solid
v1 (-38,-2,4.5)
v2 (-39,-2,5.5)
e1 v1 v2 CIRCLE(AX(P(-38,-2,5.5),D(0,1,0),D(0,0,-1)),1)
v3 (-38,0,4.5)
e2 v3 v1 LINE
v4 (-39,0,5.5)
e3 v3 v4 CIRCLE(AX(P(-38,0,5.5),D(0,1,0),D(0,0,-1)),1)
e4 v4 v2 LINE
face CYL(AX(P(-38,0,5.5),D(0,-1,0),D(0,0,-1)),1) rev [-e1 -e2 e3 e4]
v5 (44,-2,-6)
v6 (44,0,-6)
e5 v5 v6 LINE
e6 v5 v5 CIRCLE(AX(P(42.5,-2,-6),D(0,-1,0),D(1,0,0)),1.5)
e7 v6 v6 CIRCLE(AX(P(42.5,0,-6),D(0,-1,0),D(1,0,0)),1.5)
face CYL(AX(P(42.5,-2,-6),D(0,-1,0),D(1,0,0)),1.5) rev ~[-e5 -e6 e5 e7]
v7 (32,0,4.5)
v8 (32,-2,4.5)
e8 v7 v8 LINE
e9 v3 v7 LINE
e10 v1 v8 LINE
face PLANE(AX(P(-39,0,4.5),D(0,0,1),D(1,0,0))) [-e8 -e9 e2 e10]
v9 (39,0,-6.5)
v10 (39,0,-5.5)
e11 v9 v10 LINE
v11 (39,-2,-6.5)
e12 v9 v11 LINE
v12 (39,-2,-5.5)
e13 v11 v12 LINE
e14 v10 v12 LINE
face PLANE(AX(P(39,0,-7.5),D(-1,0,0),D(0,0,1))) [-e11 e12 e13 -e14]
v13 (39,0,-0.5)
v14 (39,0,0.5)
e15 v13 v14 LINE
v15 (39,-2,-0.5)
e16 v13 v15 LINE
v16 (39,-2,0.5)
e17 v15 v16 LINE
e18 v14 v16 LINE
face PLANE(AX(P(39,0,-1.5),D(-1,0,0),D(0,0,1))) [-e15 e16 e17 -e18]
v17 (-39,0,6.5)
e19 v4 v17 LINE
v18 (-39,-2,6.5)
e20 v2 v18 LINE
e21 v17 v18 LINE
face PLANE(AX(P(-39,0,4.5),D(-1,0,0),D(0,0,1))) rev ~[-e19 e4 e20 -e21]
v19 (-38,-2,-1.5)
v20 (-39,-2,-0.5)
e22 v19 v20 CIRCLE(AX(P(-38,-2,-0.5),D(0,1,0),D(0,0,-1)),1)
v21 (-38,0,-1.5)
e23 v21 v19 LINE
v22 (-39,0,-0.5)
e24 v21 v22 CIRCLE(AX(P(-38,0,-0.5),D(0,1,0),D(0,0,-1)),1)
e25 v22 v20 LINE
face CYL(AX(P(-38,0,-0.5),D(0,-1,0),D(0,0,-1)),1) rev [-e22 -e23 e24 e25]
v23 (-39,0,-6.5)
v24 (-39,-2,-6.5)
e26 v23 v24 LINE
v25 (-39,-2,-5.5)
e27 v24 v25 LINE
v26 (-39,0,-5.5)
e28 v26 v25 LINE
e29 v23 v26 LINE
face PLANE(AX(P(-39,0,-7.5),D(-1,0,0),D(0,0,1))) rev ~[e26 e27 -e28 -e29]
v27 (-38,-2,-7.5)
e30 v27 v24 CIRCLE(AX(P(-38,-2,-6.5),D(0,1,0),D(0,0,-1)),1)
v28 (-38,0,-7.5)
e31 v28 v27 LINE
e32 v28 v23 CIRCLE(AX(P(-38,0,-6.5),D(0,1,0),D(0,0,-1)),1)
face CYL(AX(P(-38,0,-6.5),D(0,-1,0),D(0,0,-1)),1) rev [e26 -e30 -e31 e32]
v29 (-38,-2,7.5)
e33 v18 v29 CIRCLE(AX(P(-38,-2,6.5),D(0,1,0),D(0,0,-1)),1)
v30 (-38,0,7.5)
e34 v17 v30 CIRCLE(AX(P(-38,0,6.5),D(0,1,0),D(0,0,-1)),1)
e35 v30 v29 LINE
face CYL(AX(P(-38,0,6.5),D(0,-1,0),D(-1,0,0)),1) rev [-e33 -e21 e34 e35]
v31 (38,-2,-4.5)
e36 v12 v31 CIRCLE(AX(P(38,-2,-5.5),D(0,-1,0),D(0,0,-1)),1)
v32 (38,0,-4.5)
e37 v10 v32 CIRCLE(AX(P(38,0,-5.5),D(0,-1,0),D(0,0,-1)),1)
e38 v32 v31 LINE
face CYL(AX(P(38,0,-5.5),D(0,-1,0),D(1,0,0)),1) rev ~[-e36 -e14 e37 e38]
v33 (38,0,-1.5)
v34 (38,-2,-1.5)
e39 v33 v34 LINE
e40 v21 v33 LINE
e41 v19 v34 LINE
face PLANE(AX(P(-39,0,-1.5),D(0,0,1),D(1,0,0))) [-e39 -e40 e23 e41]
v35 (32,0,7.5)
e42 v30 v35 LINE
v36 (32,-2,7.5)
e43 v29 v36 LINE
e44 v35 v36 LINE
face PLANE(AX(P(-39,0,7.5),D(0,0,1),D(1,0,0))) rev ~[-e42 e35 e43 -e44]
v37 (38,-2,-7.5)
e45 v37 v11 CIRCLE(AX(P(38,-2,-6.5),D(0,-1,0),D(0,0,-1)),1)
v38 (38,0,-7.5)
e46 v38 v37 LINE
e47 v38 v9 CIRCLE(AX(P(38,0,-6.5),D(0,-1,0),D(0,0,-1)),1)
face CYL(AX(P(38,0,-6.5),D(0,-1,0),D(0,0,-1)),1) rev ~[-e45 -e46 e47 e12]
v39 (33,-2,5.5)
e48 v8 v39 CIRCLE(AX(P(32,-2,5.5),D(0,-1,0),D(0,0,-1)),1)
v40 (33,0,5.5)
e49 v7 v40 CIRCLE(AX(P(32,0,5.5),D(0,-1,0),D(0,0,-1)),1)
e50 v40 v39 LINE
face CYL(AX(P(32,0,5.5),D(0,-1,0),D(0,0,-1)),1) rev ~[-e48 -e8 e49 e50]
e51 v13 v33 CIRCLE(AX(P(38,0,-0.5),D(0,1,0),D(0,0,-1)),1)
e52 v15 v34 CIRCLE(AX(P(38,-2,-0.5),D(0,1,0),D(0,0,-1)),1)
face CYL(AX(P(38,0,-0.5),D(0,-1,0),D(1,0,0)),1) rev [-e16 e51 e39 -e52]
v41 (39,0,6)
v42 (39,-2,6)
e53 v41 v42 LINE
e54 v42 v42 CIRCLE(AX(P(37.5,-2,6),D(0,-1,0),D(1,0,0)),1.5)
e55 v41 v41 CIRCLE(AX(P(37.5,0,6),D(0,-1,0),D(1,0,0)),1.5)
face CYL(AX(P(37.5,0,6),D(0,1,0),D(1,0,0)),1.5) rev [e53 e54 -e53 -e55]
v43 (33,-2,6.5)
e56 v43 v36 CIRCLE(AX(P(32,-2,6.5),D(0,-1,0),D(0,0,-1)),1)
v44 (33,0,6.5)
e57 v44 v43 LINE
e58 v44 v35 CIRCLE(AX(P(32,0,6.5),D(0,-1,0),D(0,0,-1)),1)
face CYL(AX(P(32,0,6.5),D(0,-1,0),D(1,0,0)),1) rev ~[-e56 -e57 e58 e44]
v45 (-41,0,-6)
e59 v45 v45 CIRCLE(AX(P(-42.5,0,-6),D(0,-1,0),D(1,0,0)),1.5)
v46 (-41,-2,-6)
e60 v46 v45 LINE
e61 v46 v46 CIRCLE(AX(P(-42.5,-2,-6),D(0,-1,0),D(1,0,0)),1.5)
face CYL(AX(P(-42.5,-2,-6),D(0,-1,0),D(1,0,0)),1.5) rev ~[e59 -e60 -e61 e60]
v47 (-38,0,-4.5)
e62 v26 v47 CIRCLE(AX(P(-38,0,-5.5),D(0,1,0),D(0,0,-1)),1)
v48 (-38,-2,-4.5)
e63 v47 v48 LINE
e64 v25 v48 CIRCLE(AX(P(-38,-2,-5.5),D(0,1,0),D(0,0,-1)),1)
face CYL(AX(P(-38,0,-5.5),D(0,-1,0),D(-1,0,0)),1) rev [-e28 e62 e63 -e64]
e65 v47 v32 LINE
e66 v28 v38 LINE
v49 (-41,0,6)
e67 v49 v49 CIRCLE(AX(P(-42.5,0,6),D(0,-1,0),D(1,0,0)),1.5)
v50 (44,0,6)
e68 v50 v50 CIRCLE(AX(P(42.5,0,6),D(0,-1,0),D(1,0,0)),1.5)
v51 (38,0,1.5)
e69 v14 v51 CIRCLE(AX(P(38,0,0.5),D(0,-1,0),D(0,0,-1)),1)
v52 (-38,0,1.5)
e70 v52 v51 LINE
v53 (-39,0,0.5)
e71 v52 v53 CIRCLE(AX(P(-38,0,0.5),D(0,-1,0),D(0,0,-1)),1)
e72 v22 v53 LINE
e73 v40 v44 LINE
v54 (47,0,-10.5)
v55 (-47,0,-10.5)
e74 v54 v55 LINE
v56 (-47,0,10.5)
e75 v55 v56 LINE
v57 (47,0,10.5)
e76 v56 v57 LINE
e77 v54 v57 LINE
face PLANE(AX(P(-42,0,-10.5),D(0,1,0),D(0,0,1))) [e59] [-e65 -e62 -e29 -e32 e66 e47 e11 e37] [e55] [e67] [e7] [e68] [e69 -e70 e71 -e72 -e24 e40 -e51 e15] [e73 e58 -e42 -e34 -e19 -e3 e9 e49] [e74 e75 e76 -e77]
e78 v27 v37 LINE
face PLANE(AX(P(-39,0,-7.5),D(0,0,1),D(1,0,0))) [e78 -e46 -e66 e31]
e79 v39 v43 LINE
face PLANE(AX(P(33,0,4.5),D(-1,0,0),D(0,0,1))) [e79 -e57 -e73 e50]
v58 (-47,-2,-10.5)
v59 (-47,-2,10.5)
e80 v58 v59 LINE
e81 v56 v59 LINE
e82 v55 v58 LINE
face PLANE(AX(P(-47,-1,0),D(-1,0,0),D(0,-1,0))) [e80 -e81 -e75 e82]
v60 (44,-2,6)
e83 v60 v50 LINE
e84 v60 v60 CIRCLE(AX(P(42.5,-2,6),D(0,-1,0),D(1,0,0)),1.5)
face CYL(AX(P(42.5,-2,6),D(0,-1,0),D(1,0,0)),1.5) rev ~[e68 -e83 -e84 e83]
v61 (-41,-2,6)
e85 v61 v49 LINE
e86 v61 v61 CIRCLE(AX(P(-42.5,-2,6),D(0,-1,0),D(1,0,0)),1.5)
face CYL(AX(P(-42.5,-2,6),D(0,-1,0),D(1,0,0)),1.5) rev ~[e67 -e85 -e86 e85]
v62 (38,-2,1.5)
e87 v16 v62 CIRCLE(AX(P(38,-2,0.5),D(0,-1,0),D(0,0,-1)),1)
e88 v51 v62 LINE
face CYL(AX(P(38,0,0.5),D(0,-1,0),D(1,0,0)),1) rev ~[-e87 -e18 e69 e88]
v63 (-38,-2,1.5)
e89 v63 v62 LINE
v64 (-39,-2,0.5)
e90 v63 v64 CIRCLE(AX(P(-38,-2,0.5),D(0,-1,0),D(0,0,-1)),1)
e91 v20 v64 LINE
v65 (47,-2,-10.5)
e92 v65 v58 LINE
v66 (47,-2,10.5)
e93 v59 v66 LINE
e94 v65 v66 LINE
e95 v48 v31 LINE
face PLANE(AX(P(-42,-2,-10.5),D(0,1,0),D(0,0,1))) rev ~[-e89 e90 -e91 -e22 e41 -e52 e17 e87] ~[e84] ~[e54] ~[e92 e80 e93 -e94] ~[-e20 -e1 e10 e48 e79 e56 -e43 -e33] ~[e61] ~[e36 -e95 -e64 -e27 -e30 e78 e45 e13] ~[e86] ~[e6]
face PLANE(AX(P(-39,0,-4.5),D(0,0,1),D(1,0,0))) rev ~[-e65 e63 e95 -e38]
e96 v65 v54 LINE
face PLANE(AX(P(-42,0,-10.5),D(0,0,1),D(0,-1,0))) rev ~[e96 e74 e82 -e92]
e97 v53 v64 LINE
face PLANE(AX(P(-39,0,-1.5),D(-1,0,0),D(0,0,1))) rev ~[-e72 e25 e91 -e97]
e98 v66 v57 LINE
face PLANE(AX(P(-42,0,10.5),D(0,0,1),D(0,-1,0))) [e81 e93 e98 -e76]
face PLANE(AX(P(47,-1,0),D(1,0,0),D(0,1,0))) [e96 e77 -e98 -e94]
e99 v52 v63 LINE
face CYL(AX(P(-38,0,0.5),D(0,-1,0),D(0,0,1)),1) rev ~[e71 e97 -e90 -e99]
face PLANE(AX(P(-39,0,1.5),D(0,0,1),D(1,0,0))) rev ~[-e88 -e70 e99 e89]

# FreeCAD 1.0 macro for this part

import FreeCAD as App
import Part
import Sketcher
Q = App.Units.Quantity


def edges_at(feature, points):
    """Names of the edges that pass closest to the given points."""
    edges = feature.Shape.Edges
    near = lambda p: min(range(len(edges)), key=lambda i: edges[i].distToShape(Part.Vertex(*p))[0])
    return sorted({f"Edge{near(p) + 1}" for p in points})

doc = App.newDocument("Part")
params = doc.addObject("Spreadsheet::Sheet", "Params")
for row, (alias, value) in enumerate([
    ("sketch1_diameter", "3 mm"),
    ("sketch1_width", "84 mm"),
    ("sketch1_width2", "78 mm"),
    ("sketch1_width3", "72 mm"),
    ("sketch1_height", "21 mm"),
    ("pad1_length", "2 mm"),
    ("sketch2_width", "2 mm"),
    ("sketch2_height", "21 mm"),
    ("pad2_length", "5 mm"),
    ("sketch3_width", "2 mm"),
    ("sketch3_height", "21 mm"),
    ("pad3_length", "5 mm"),
    ("sketch4_diameter", "3 mm"),
    ("pocket1_length", "25 mm"),
    ("fillet_radius", "1 mm"),
], start=1):
    params.set(f"A{row}", alias)
    params.set(f"B{row}", "=" + value)
    params.setAlias(f"B{row}", alias)

body = doc.addObject("PartDesign::Body", "Body")

# Sketch on XZ plane
sketch1 = body.newObject("Sketcher::SketchObject", "Sketch")
sketch1.AttachmentSupport = (doc.getObject("XZ_Plane"), [""])
sketch1.MapMode = "FlatFace"
sketch1.addGeometry(Part.LineSegment(App.Vector(-42, 10.5, 0), App.Vector(-42, -10.5, 0)), False)
sketch1.addGeometry(Part.LineSegment(App.Vector(-42, -10.5, 0), App.Vector(42, -10.5, 0)), False)
sketch1.addGeometry(Part.LineSegment(App.Vector(42, -10.5, 0), App.Vector(42, 10.5, 0)), False)
sketch1.addGeometry(Part.LineSegment(App.Vector(42, 10.5, 0), App.Vector(-42, 10.5, 0)), False)
sketch1.addGeometry(Part.LineSegment(App.Vector(39, -7.5, 0), App.Vector(-39, -7.5, 0)), False)
sketch1.addGeometry(Part.LineSegment(App.Vector(-39, -7.5, 0), App.Vector(-39, -4.5, 0)), False)
sketch1.addGeometry(Part.LineSegment(App.Vector(-39, -4.5, 0), App.Vector(39, -4.5, 0)), False)
sketch1.addGeometry(Part.LineSegment(App.Vector(39, -4.5, 0), App.Vector(39, -7.5, 0)), False)
sketch1.addGeometry(Part.LineSegment(App.Vector(33, 4.5, 0), App.Vector(-39, 4.5, 0)), False)
sketch1.addGeometry(Part.LineSegment(App.Vector(-39, 4.5, 0), App.Vector(-39, 7.5, 0)), False)
sketch1.addGeometry(Part.LineSegment(App.Vector(-39, 7.5, 0), App.Vector(33, 7.5, 0)), False)
sketch1.addGeometry(Part.LineSegment(App.Vector(33, 7.5, 0), App.Vector(33, 4.5, 0)), False)
sketch1.addGeometry(Part.LineSegment(App.Vector(39, -1.5, 0), App.Vector(-39, -1.5, 0)), False)
sketch1.addGeometry(Part.LineSegment(App.Vector(-39, -1.5, 0), App.Vector(-39, 1.5, 0)), False)
sketch1.addGeometry(Part.LineSegment(App.Vector(-39, 1.5, 0), App.Vector(39, 1.5, 0)), False)
sketch1.addGeometry(Part.LineSegment(App.Vector(39, 1.5, 0), App.Vector(39, -1.5, 0)), False)
sketch1.addGeometry(Part.Circle(App.Vector(37.5, 6, 0), App.Vector(0, 0, 1), 1.5), False)
sketch1.addConstraint(Sketcher.Constraint("Coincident", 0, 2, 1, 1))
sketch1.addConstraint(Sketcher.Constraint("Coincident", 1, 2, 2, 1))
sketch1.addConstraint(Sketcher.Constraint("Coincident", 2, 2, 3, 1))
sketch1.addConstraint(Sketcher.Constraint("Coincident", 3, 2, 0, 1))
sketch1.addConstraint(Sketcher.Constraint("Coincident", 4, 2, 5, 1))
sketch1.addConstraint(Sketcher.Constraint("Coincident", 5, 2, 6, 1))
sketch1.addConstraint(Sketcher.Constraint("Coincident", 6, 2, 7, 1))
sketch1.addConstraint(Sketcher.Constraint("Coincident", 7, 2, 4, 1))
sketch1.addConstraint(Sketcher.Constraint("Coincident", 8, 2, 9, 1))
sketch1.addConstraint(Sketcher.Constraint("Coincident", 9, 2, 10, 1))
sketch1.addConstraint(Sketcher.Constraint("Coincident", 10, 2, 11, 1))
sketch1.addConstraint(Sketcher.Constraint("Coincident", 11, 2, 8, 1))
sketch1.addConstraint(Sketcher.Constraint("Coincident", 12, 2, 13, 1))
sketch1.addConstraint(Sketcher.Constraint("Coincident", 13, 2, 14, 1))
sketch1.addConstraint(Sketcher.Constraint("Coincident", 14, 2, 15, 1))
sketch1.addConstraint(Sketcher.Constraint("Coincident", 15, 2, 12, 1))
sketch1.addConstraint(Sketcher.Constraint("Vertical", 0))
sketch1.addConstraint(Sketcher.Constraint("Horizontal", 1))
sketch1.addConstraint(Sketcher.Constraint("Vertical", 2))
sketch1.addConstraint(Sketcher.Constraint("Horizontal", 3))
sketch1.addConstraint(Sketcher.Constraint("Horizontal", 4))
sketch1.addConstraint(Sketcher.Constraint("Vertical", 5))
sketch1.addConstraint(Sketcher.Constraint("Horizontal", 6))
sketch1.addConstraint(Sketcher.Constraint("Vertical", 7))
sketch1.addConstraint(Sketcher.Constraint("Horizontal", 8))
sketch1.addConstraint(Sketcher.Constraint("Vertical", 9))
sketch1.addConstraint(Sketcher.Constraint("Horizontal", 10))
sketch1.addConstraint(Sketcher.Constraint("Vertical", 11))
sketch1.addConstraint(Sketcher.Constraint("Horizontal", 12))
sketch1.addConstraint(Sketcher.Constraint("Vertical", 13))
sketch1.addConstraint(Sketcher.Constraint("Horizontal", 14))
sketch1.addConstraint(Sketcher.Constraint("Vertical", 15))
sketch1.addConstraint(Sketcher.Constraint("Symmetric", 0, 2, 2, 2, -1, 1))
sketch1.addConstraint(Sketcher.Constraint("Symmetric", 6, 2, 8, 2, -1, 1))
sketch1.addConstraint(Sketcher.Constraint("Symmetric", 12, 2, 14, 2, -1, 1))
sketch1.addConstraint(Sketcher.Constraint("Symmetric", 4, 2, 9, 2, -1))
sketch1.addConstraint(Sketcher.Constraint("Vertical", 9, 2, 12, 2))
sketch1.addConstraint(Sketcher.Constraint("Equal", 11, 13))
sketch1.addConstraint(Sketcher.Constraint("Diameter", 16, Q("3 mm")))
sketch1.addConstraint(Sketcher.Constraint("DistanceX", 1, 1, 1, 2, Q("84 mm")))
sketch1.addConstraint(Sketcher.Constraint("DistanceX", 4, 2, 4, 1, Q("78 mm")))
sketch1.addConstraint(Sketcher.Constraint("DistanceX", 8, 2, 8, 1, Q("72 mm")))
sketch1.addConstraint(Sketcher.Constraint("DistanceY", 0, 2, 0, 1, Q("21 mm")))
sketch1.addConstraint(Sketcher.Constraint("DistanceY", 5, 1, 5, 2, Q("3 mm")))
sketch1.addConstraint(Sketcher.Constraint("DistanceY", -1, 1, 16, 3, Q("6 mm")))
sketch1.addConstraint(Sketcher.Constraint("DistanceY", 0, 2, 4, 2, Q("3 mm")))
sketch1.addConstraint(Sketcher.Constraint("DistanceX", -1, 1, 16, 3, Q("37.5 mm")))
sketch1.setExpression("Constraints[38]", "Params.sketch1_diameter")
sketch1.setExpression("Constraints[39]", "Params.sketch1_width")
sketch1.setExpression("Constraints[40]", "Params.sketch1_width2")
sketch1.setExpression("Constraints[41]", "Params.sketch1_width3")
sketch1.setExpression("Constraints[42]", "Params.sketch1_height")
pad1 = body.newObject("PartDesign::Pad", "Pad")
pad1.Profile = sketch1
pad1.setExpression("Length", "Params.pad1_length")

# Sketch on YZ plane
sketch2 = body.newObject("Sketcher::SketchObject", "Sketch001")
sketch2.AttachmentSupport = (doc.getObject("YZ_Plane"), [""])
sketch2.MapMode = "FlatFace"
sketch2.AttachmentOffset = App.Placement(App.Vector(0, 0, 42), App.Rotation())
sketch2.addGeometry(Part.LineSegment(App.Vector(-2, 10.5, 0), App.Vector(-2, -10.5, 0)), False)
sketch2.addGeometry(Part.LineSegment(App.Vector(-2, -10.5, 0), App.Vector(0, -10.5, 0)), False)
sketch2.addGeometry(Part.LineSegment(App.Vector(0, -10.5, 0), App.Vector(0, 10.5, 0)), False)
sketch2.addGeometry(Part.LineSegment(App.Vector(0, 10.5, 0), App.Vector(-2, 10.5, 0)), False)
sketch2.addConstraint(Sketcher.Constraint("Coincident", 0, 2, 1, 1))
sketch2.addConstraint(Sketcher.Constraint("Coincident", 1, 2, 2, 1))
sketch2.addConstraint(Sketcher.Constraint("Coincident", 2, 2, 3, 1))
sketch2.addConstraint(Sketcher.Constraint("Coincident", 3, 2, 0, 1))
sketch2.addConstraint(Sketcher.Constraint("Vertical", 0))
sketch2.addConstraint(Sketcher.Constraint("Horizontal", 1))
sketch2.addConstraint(Sketcher.Constraint("Vertical", 2))
sketch2.addConstraint(Sketcher.Constraint("Horizontal", 3))
sketch2.addConstraint(Sketcher.Constraint("Symmetric", 1, 2, 2, 2, -1, 1))
sketch2.addConstraint(Sketcher.Constraint("DistanceX", 1, 1, 1, 2, Q("2 mm")))
sketch2.addConstraint(Sketcher.Constraint("DistanceY", 0, 2, 0, 1, Q("21 mm")))
sketch2.setExpression("Constraints[9]", "Params.sketch2_width")
sketch2.setExpression("Constraints[10]", "Params.sketch2_height")
pad2 = body.newObject("PartDesign::Pad", "Pad001")
pad2.Profile = sketch2
pad2.setExpression("Length", "Params.pad2_length")

# Sketch on YZ plane
sketch3 = body.newObject("Sketcher::SketchObject", "Sketch002")
sketch3.AttachmentSupport = (doc.getObject("YZ_Plane"), [""])
sketch3.MapMode = "FlatFace"
sketch3.AttachmentOffset = App.Placement(App.Vector(0, 0, -42), App.Rotation())
sketch3.addGeometry(Part.LineSegment(App.Vector(0, 10.5, 0), App.Vector(0, -10.5, 0)), False)
sketch3.addGeometry(Part.LineSegment(App.Vector(0, -10.5, 0), App.Vector(-2, -10.5, 0)), False)
sketch3.addGeometry(Part.LineSegment(App.Vector(-2, -10.5, 0), App.Vector(-2, 10.5, 0)), False)
sketch3.addGeometry(Part.LineSegment(App.Vector(-2, 10.5, 0), App.Vector(0, 10.5, 0)), False)
sketch3.addConstraint(Sketcher.Constraint("Coincident", 0, 2, 1, 1))
sketch3.addConstraint(Sketcher.Constraint("Coincident", 1, 2, 2, 1))
sketch3.addConstraint(Sketcher.Constraint("Coincident", 2, 2, 3, 1))
sketch3.addConstraint(Sketcher.Constraint("Coincident", 3, 2, 0, 1))
sketch3.addConstraint(Sketcher.Constraint("Vertical", 0))
sketch3.addConstraint(Sketcher.Constraint("Horizontal", 1))
sketch3.addConstraint(Sketcher.Constraint("Vertical", 2))
sketch3.addConstraint(Sketcher.Constraint("Horizontal", 3))
sketch3.addConstraint(Sketcher.Constraint("Symmetric", 0, 2, 3, 2, -1, 1))
sketch3.addConstraint(Sketcher.Constraint("DistanceX", 1, 2, 1, 1, Q("2 mm")))
sketch3.addConstraint(Sketcher.Constraint("DistanceY", 0, 2, 0, 1, Q("21 mm")))
sketch3.setExpression("Constraints[9]", "Params.sketch3_width")
sketch3.setExpression("Constraints[10]", "Params.sketch3_height")
pad3 = body.newObject("PartDesign::Pad", "Pad002")
pad3.Profile = sketch3
pad3.setExpression("Length", "Params.pad3_length")
pad3.Reversed = True

# Sketch on XZ plane
sketch4 = body.newObject("Sketcher::SketchObject", "Sketch003")
sketch4.AttachmentSupport = (doc.getObject("XZ_Plane"), [""])
sketch4.MapMode = "FlatFace"
sketch4.AttachmentOffset = App.Placement(App.Vector(0, 0, 2), App.Rotation())
sketch4.addGeometry(Part.Circle(App.Vector(-42.5, 6, 0), App.Vector(0, 0, 1), 1.5), False)
sketch4.addGeometry(Part.Circle(App.Vector(-42.5, -6, 0), App.Vector(0, 0, 1), 1.5), False)
sketch4.addGeometry(Part.Circle(App.Vector(42.5, 6, 0), App.Vector(0, 0, 1), 1.5), False)
sketch4.addGeometry(Part.Circle(App.Vector(42.5, -6, 0), App.Vector(0, 0, 1), 1.5), False)
sketch4.addConstraint(Sketcher.Constraint("Equal", 0, 1))
sketch4.addConstraint(Sketcher.Constraint("Equal", 1, 2))
sketch4.addConstraint(Sketcher.Constraint("Equal", 2, 3))
sketch4.addConstraint(Sketcher.Constraint("Symmetric", 1, 3, 2, 3, -1, 1))
sketch4.addConstraint(Sketcher.Constraint("Symmetric", 0, 3, 3, 3, -1, 1))
sketch4.addConstraint(Sketcher.Constraint("Symmetric", 0, 3, 2, 3, -2))
sketch4.addConstraint(Sketcher.Constraint("Diameter", 0, Q("3 mm")))
sketch4.addConstraint(Sketcher.Constraint("DistanceY", -1, 1, 0, 3, Q("6 mm")))
sketch4.addConstraint(Sketcher.Constraint("DistanceX", 0, 3, 2, 3, Q("85 mm")))
sketch4.setExpression("Constraints[6]", "Params.sketch4_diameter")
pocket1 = body.newObject("PartDesign::Pocket", "Pocket")
pocket1.Profile = sketch4
pocket1.setExpression("Length", "Params.pocket1_length")
doc.recompute()

fillet = body.newObject("PartDesign::Fillet", "Fillet")
fillet.Base = (pocket1, edges_at(pocket1, [
    (-39, -1, 7.5),
    (-39, -1, 1.5),
    (-39, -1, -4.5),
    (-39, -1, 4.5),
    (-39, -1, -1.5),
    (-39, -1, -7.5),
    (33, -1, 7.5),
    (39, -1, 1.5),
    (39, -1, -4.5),
    (39, -1, -7.5),
    (39, -1, -1.5),
    (33, -1, 4.5),
]))
fillet.setExpression("Radius", "Params.fillet_radius")

doc.recompute()
